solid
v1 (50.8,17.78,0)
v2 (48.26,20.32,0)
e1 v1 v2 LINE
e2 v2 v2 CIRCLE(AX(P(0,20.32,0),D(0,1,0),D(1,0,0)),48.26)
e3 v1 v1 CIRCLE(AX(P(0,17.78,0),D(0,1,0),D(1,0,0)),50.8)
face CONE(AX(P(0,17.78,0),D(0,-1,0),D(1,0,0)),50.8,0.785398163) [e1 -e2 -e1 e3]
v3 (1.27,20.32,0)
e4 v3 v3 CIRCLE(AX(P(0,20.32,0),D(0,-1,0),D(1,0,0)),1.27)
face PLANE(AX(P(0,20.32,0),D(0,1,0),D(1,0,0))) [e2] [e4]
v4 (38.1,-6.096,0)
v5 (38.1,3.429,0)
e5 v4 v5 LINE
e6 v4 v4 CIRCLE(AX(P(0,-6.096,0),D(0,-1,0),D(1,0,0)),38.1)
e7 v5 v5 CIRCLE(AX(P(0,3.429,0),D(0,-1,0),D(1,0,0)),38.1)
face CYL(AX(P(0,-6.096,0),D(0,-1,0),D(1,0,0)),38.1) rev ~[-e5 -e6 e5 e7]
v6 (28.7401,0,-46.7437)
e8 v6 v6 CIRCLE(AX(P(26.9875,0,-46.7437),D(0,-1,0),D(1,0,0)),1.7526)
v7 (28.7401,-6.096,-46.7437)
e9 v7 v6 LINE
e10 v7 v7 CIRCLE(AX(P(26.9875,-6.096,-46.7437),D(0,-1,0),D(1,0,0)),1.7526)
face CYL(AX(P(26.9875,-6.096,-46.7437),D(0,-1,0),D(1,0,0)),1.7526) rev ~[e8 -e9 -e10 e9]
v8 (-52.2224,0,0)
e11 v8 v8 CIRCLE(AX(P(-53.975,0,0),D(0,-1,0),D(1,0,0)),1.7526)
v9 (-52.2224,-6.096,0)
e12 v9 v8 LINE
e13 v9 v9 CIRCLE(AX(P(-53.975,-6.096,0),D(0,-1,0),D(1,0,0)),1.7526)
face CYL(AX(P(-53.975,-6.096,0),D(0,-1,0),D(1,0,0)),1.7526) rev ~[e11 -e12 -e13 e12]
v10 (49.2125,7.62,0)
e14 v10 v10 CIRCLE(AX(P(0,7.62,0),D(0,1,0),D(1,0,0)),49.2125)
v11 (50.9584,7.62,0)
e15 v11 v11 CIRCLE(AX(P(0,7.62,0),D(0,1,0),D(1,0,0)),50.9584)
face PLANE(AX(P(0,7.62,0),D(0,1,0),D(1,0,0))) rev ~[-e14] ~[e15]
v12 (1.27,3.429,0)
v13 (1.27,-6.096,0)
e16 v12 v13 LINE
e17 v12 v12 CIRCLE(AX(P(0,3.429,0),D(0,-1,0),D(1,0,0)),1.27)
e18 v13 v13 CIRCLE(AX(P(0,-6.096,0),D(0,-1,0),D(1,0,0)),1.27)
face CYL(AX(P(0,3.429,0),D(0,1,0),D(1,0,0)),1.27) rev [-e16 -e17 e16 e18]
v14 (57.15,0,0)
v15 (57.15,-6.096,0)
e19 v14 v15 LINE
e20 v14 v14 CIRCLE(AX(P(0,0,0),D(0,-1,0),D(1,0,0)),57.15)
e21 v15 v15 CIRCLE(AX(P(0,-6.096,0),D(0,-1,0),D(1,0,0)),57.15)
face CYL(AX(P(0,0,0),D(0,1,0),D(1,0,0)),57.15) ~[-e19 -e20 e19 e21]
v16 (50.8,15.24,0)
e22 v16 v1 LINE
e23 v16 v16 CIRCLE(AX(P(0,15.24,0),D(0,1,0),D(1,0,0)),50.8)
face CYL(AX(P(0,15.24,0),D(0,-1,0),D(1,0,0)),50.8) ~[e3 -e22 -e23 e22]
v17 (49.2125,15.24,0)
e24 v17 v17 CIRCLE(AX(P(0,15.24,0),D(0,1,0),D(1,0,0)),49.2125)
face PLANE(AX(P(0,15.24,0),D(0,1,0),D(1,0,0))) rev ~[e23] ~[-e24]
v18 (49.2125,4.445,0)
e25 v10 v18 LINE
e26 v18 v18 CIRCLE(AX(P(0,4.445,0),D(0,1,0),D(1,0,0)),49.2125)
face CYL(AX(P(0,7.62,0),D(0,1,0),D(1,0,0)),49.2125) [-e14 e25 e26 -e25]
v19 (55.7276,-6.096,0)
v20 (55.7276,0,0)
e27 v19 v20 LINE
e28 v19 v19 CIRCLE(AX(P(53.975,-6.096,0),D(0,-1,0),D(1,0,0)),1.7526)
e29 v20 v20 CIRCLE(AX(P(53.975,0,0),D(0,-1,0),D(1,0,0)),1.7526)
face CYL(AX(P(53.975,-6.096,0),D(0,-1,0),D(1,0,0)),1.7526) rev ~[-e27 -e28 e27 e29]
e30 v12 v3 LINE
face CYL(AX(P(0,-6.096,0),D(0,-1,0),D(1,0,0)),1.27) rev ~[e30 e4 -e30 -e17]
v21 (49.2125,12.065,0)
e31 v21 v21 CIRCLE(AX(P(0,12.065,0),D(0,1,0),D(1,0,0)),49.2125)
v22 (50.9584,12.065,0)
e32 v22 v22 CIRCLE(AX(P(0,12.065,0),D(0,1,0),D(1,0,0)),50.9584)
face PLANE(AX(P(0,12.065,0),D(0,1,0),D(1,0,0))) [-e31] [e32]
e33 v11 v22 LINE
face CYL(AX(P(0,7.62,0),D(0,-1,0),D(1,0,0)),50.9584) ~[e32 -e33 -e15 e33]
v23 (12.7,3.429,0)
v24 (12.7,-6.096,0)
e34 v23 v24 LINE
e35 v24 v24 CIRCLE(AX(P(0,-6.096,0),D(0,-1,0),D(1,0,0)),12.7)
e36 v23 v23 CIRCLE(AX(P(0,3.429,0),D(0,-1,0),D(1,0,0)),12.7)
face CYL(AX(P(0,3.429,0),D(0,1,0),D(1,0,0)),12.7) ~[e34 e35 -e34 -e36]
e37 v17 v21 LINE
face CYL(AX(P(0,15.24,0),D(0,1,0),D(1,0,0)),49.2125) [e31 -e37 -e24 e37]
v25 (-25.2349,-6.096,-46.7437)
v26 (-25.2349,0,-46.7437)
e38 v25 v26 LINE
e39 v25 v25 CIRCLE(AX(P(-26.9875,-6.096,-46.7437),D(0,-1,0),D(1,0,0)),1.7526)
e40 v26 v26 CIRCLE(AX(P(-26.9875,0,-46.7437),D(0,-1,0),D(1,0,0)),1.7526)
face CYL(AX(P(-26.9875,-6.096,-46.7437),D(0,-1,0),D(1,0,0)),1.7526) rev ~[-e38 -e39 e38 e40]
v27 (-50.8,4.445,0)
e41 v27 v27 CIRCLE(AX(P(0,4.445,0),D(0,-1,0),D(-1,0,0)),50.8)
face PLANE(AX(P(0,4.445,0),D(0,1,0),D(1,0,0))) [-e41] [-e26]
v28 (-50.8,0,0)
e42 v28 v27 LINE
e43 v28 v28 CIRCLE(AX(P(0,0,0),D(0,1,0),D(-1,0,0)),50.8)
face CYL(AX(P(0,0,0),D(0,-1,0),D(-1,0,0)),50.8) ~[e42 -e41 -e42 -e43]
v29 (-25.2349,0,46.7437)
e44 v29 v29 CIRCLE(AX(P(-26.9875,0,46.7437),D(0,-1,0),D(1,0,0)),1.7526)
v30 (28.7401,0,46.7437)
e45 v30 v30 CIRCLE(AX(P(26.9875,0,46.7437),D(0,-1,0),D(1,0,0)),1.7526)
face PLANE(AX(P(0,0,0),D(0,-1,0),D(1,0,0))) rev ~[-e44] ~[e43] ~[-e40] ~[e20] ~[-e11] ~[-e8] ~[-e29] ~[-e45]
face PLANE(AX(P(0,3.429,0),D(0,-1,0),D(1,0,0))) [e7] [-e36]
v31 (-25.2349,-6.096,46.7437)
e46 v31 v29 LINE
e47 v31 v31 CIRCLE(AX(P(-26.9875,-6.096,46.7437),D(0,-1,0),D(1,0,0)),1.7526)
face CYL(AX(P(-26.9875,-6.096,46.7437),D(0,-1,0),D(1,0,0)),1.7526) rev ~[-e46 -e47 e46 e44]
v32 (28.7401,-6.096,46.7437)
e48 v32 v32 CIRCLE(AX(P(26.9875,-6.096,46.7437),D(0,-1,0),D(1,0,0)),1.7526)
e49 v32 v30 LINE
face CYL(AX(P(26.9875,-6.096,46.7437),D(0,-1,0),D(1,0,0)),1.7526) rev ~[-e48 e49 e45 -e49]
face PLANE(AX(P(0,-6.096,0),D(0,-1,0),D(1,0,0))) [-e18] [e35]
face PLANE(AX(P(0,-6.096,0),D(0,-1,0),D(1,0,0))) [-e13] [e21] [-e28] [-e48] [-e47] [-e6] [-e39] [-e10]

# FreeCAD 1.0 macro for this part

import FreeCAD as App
import Part
import Sketcher
from FreeCAD import Vector
Q = App.Units.Quantity


def edges_at(feature, points):
    """Names of the edges that pass closest to the given points."""
    edges = feature.Shape.Edges
    near = lambda p: min(range(len(edges)), key=lambda i: edges[i].distToShape(Part.Vertex(*p))[0])
    return sorted({f"Edge{near(p) + 1}" for p in points})

doc = App.newDocument("Part")
body = doc.addObject("PartDesign::Body", "Body")

sketch1 = body.newObject("Sketcher::SketchObject", "Sketch")
sketch1.AttachmentSupport = (doc.getObject("XZ_Plane"), [""])
sketch1.MapMode = "FlatFace"
sketch1.addGeometry(Part.Circle(Vector(0, 0, 0), Vector(0, 0, 1), 51), False)
sketch1.addConstraint(Sketcher.Constraint("Coincident", 0, 3, -1, 1))
sketch1.addConstraint(Sketcher.Constraint("Diameter", 0, Q("4 in")))
pad1 = body.newObject("PartDesign::Pad", "Pad")
pad1.Profile = sketch1
pad1.Length = Q("0.3 in")
pad1.Reversed = True

sketch2 = body.newObject("Sketcher::SketchObject", "Sketch001")
sketch2.AttachmentSupport = (doc.getObject("XZ_Plane"), [""])
sketch2.MapMode = "FlatFace"
sketch2.AttachmentOffset = App.Placement(Vector(0, 0, -0.3 * 25.4), App.Rotation())
sketch2.addGeometry(Part.Circle(Vector(0, 0, 0), Vector(0, 0, 1), 51), False)
sketch2.addGeometry(Part.Circle(Vector(0, 0, 0), Vector(0, 0, 1), 49), False)
sketch2.addConstraint(Sketcher.Constraint("Coincident", 0, 3, -1, 1))
sketch2.addConstraint(Sketcher.Constraint("Coincident", 1, 3, -1, 1))
sketch2.addConstraint(Sketcher.Constraint("Diameter", 0, Q("4 in")))
sketch2.addConstraint(Sketcher.Constraint("Diameter", 1, Q("3.875 in")))
pocket1 = body.newObject("PartDesign::Pocket", "Pocket")
pocket1.Profile = sketch2
pocket1.Length = Q("0.125 in")
pocket1.Reversed = True

sketch3 = body.newObject("Sketcher::SketchObject", "Sketch002")
sketch3.AttachmentSupport = (doc.getObject("XZ_Plane"), [""])
sketch3.MapMode = "FlatFace"
sketch3.AttachmentOffset = App.Placement(Vector(0, 0, -0.3 * 25.4), App.Rotation())
sketch3.addGeometry(Part.Circle(Vector(0, 0, 0), Vector(0, 0, 1), 51), False)
sketch3.addConstraint(Sketcher.Constraint("Coincident", 0, 3, -1, 1))
sketch3.addConstraint(Sketcher.Constraint("Diameter", 0, 101.9168))
pad2 = body.newObject("PartDesign::Pad", "Pad001")
pad2.Profile = sketch3
pad2.Length = Q("0.3 in")
pad2.Reversed = True

sketch4 = body.newObject("Sketcher::SketchObject", "Sketch003")
sketch4.AttachmentSupport = (doc.getObject("XZ_Plane"), [""])
sketch4.MapMode = "FlatFace"
sketch4.AttachmentOffset = App.Placement(Vector(0, 0, -0.6 * 25.4), App.Rotation())
sketch4.addGeometry(Part.Circle(Vector(0, 0, 0), Vector(0, 0, 1), 51), False)
sketch4.addGeometry(Part.Circle(Vector(0, 0, 0), Vector(0, 0, 1), 49), False)
sketch4.addConstraint(Sketcher.Constraint("Coincident", 0, 3, -1, 1))
sketch4.addConstraint(Sketcher.Constraint("Coincident", 1, 3, -1, 1))
sketch4.addConstraint(Sketcher.Constraint("Diameter", 1, Q("3.875 in")))
sketch4.addConstraint(Sketcher.Constraint("Diameter", 0, 101.9168))
pocket2 = body.newObject("PartDesign::Pocket", "Pocket001")
pocket2.Profile = sketch4
pocket2.Length = Q("0.125 in")
pocket2.Reversed = True

sketch5 = body.newObject("Sketcher::SketchObject", "Sketch004")
sketch5.AttachmentSupport = (doc.getObject("XZ_Plane"), [""])
sketch5.MapMode = "FlatFace"
sketch5.AttachmentOffset = App.Placement(Vector(0, 0, -0.6 * 25.4), App.Rotation())
sketch5.addGeometry(Part.Circle(Vector(0, 0, 0), Vector(0, 0, 1), 51), False)
sketch5.addConstraint(Sketcher.Constraint("Coincident", 0, 3, -1, 1))
sketch5.addConstraint(Sketcher.Constraint("Diameter", 0, Q("4 in")))
pad3 = body.newObject("PartDesign::Pad", "Pad002")
pad3.Profile = sketch5
pad3.Length = Q("0.2 in")
pad3.Reversed = True

sketch6 = body.newObject("Sketcher::SketchObject", "Sketch005")
sketch6.AttachmentSupport = (doc.getObject("XZ_Plane"), [""])
sketch6.MapMode = "FlatFace"
sketch6.addGeometry(Part.Circle(Vector(0, 0, 0), Vector(0, 0, 1), 57), False)
sketch6.addConstraint(Sketcher.Constraint("Coincident", 0, 3, -1, 1))
sketch6.addConstraint(Sketcher.Constraint("Diameter", 0, Q("4.5 in")))
pad4 = body.newObject("PartDesign::Pad", "Pad003")
pad4.Profile = sketch6
pad4.Length = Q("0.24 in")
doc.recompute()

chamfer = body.newObject("PartDesign::Chamfer", "Chamfer")
chamfer.Base = (pad4, edges_at(pad4, [(-50.8, 20.32, 0)]))
chamfer.Size = Q("0.1 in")

sketch7 = body.newObject("Sketcher::SketchObject", "Sketch006")
sketch7.AttachmentSupport = (doc.getObject("XZ_Plane"), [""])
sketch7.MapMode = "FlatFace"
sketch7.AttachmentOffset = App.Placement(Vector(0, 0, 0.24 * 25.4), App.Rotation())
sketch7.addGeometry(Part.Circle(Vector(54, 0, 0), Vector(0, 0, 1), 1.8), False)
sketch7.addGeometry(Part.Circle(Vector(27, 46.7, 0), Vector(0, 0, 1), 1.8), False)
sketch7.addGeometry(Part.Circle(Vector(-27, 46.7, 0), Vector(0, 0, 1), 1.8), False)
sketch7.addGeometry(Part.Circle(Vector(-54, 0, 0), Vector(0, 0, 1), 1.8), False)
sketch7.addGeometry(Part.Circle(Vector(-27, -46.7, 0), Vector(0, 0, 1), 1.8), False)
sketch7.addGeometry(Part.Circle(Vector(27, -46.7, 0), Vector(0, 0, 1), 1.8), False)
sketch7.addConstraint(Sketcher.Constraint("Equal", 0, 1))
sketch7.addConstraint(Sketcher.Constraint("Equal", 1, 2))
sketch7.addConstraint(Sketcher.Constraint("Equal", 2, 3))
sketch7.addConstraint(Sketcher.Constraint("Equal", 3, 4))
sketch7.addConstraint(Sketcher.Constraint("Equal", 4, 5))
sketch7.addConstraint(Sketcher.Constraint("Symmetric", 0, 3, 3, 3, -1, 1))
sketch7.addConstraint(Sketcher.Constraint("Symmetric", 1, 3, 4, 3, -1, 1))
sketch7.addConstraint(Sketcher.Constraint("Symmetric", 2, 3, 5, 3, -1, 1))
sketch7.addConstraint(Sketcher.Constraint("Symmetric", 1, 3, 2, 3, -2))
sketch7.addConstraint(Sketcher.Constraint("PointOnObject", 0, 3, -1))
sketch7.addConstraint(Sketcher.Constraint("Diameter", 0, Q("0.138 in")))
sketch7.addConstraint(Sketcher.Constraint("DistanceX", -1, 1, 0, 3, Q("2.125 in")))
sketch7.addConstraint(Sketcher.Constraint("DistanceX", 2, 3, 1, 3, Q("2.125 in")))
sketch7.addConstraint(Sketcher.Constraint("DistanceY", -1, 1, 1, 3, Q("1.8403 in")))
pocket3 = body.newObject("PartDesign::Pocket", "Pocket002")
pocket3.Profile = sketch7
pocket3.Length = Q("0.24 in")

sketch8 = body.newObject("Sketcher::SketchObject", "Sketch007")
sketch8.AttachmentSupport = (doc.getObject("XZ_Plane"), [""])
sketch8.MapMode = "FlatFace"
sketch8.AttachmentOffset = App.Placement(Vector(0, 0, 0.24 * 25.4), App.Rotation())
sketch8.addGeometry(Part.Circle(Vector(0, 0, 0), Vector(0, 0, 1), 1.3), False)
sketch8.addConstraint(Sketcher.Constraint("Coincident", 0, 3, -1, 1))
sketch8.addConstraint(Sketcher.Constraint("Diameter", 0, Q("0.1 in")))
pocket4 = body.newObject("PartDesign::Pocket", "Pocket003")
pocket4.Profile = sketch8
pocket4.Length = Q("5 in")

sketch9 = body.newObject("Sketcher::SketchObject", "Sketch008")
sketch9.AttachmentSupport = (doc.getObject("XZ_Plane"), [""])
sketch9.MapMode = "FlatFace"
sketch9.AttachmentOffset = App.Placement(Vector(0, 0, 0.24 * 25.4), App.Rotation())
sketch9.addGeometry(Part.Circle(Vector(0, 0, 0), Vector(0, 0, 1), 38.1), False)
sketch9.addGeometry(Part.Circle(Vector(0, 0, 0), Vector(0, 0, 1), 1.3), False)
sketch9.addConstraint(Sketcher.Constraint("Coincident", 0, 3, -1, 1))
sketch9.addConstraint(Sketcher.Constraint("Coincident", 1, 3, -1, 1))
sketch9.addConstraint(Sketcher.Constraint("Diameter", 0, Q("3 in")))
sketch9.addConstraint(Sketcher.Constraint("Diameter", 1, Q("0.1 in")))
pocket5 = body.newObject("PartDesign::Pocket", "Pocket004")
pocket5.Profile = sketch9
pocket5.Length = Q("0.375 in")

sketch10 = body.newObject("Sketcher::SketchObject", "Sketch009")
sketch10.AttachmentSupport = (doc.getObject("XZ_Plane"), [""])
sketch10.MapMode = "FlatFace"
sketch10.AttachmentOffset = App.Placement(Vector(0, 0, -0.135 * 25.4), App.Rotation())
sketch10.addGeometry(Part.Circle(Vector(0, 0, 0), Vector(0, 0, 1), 12.7), False)
sketch10.addGeometry(Part.Circle(Vector(0, 0, 0), Vector(0, 0, 1), 1.3), False)
sketch10.addConstraint(Sketcher.Constraint("Coincident", 0, 3, -1, 1))
sketch10.addConstraint(Sketcher.Constraint("Coincident", 1, 3, -1, 1))
sketch10.addConstraint(Sketcher.Constraint("Diameter", 0, Q("1 in")))
sketch10.addConstraint(Sketcher.Constraint("Diameter", 1, Q("0.1 in")))
pad5 = body.newObject("PartDesign::Pad", "Pad004")
pad5.Profile = sketch10
pad5.Length = Q("0.375 in")

doc.recompute()
